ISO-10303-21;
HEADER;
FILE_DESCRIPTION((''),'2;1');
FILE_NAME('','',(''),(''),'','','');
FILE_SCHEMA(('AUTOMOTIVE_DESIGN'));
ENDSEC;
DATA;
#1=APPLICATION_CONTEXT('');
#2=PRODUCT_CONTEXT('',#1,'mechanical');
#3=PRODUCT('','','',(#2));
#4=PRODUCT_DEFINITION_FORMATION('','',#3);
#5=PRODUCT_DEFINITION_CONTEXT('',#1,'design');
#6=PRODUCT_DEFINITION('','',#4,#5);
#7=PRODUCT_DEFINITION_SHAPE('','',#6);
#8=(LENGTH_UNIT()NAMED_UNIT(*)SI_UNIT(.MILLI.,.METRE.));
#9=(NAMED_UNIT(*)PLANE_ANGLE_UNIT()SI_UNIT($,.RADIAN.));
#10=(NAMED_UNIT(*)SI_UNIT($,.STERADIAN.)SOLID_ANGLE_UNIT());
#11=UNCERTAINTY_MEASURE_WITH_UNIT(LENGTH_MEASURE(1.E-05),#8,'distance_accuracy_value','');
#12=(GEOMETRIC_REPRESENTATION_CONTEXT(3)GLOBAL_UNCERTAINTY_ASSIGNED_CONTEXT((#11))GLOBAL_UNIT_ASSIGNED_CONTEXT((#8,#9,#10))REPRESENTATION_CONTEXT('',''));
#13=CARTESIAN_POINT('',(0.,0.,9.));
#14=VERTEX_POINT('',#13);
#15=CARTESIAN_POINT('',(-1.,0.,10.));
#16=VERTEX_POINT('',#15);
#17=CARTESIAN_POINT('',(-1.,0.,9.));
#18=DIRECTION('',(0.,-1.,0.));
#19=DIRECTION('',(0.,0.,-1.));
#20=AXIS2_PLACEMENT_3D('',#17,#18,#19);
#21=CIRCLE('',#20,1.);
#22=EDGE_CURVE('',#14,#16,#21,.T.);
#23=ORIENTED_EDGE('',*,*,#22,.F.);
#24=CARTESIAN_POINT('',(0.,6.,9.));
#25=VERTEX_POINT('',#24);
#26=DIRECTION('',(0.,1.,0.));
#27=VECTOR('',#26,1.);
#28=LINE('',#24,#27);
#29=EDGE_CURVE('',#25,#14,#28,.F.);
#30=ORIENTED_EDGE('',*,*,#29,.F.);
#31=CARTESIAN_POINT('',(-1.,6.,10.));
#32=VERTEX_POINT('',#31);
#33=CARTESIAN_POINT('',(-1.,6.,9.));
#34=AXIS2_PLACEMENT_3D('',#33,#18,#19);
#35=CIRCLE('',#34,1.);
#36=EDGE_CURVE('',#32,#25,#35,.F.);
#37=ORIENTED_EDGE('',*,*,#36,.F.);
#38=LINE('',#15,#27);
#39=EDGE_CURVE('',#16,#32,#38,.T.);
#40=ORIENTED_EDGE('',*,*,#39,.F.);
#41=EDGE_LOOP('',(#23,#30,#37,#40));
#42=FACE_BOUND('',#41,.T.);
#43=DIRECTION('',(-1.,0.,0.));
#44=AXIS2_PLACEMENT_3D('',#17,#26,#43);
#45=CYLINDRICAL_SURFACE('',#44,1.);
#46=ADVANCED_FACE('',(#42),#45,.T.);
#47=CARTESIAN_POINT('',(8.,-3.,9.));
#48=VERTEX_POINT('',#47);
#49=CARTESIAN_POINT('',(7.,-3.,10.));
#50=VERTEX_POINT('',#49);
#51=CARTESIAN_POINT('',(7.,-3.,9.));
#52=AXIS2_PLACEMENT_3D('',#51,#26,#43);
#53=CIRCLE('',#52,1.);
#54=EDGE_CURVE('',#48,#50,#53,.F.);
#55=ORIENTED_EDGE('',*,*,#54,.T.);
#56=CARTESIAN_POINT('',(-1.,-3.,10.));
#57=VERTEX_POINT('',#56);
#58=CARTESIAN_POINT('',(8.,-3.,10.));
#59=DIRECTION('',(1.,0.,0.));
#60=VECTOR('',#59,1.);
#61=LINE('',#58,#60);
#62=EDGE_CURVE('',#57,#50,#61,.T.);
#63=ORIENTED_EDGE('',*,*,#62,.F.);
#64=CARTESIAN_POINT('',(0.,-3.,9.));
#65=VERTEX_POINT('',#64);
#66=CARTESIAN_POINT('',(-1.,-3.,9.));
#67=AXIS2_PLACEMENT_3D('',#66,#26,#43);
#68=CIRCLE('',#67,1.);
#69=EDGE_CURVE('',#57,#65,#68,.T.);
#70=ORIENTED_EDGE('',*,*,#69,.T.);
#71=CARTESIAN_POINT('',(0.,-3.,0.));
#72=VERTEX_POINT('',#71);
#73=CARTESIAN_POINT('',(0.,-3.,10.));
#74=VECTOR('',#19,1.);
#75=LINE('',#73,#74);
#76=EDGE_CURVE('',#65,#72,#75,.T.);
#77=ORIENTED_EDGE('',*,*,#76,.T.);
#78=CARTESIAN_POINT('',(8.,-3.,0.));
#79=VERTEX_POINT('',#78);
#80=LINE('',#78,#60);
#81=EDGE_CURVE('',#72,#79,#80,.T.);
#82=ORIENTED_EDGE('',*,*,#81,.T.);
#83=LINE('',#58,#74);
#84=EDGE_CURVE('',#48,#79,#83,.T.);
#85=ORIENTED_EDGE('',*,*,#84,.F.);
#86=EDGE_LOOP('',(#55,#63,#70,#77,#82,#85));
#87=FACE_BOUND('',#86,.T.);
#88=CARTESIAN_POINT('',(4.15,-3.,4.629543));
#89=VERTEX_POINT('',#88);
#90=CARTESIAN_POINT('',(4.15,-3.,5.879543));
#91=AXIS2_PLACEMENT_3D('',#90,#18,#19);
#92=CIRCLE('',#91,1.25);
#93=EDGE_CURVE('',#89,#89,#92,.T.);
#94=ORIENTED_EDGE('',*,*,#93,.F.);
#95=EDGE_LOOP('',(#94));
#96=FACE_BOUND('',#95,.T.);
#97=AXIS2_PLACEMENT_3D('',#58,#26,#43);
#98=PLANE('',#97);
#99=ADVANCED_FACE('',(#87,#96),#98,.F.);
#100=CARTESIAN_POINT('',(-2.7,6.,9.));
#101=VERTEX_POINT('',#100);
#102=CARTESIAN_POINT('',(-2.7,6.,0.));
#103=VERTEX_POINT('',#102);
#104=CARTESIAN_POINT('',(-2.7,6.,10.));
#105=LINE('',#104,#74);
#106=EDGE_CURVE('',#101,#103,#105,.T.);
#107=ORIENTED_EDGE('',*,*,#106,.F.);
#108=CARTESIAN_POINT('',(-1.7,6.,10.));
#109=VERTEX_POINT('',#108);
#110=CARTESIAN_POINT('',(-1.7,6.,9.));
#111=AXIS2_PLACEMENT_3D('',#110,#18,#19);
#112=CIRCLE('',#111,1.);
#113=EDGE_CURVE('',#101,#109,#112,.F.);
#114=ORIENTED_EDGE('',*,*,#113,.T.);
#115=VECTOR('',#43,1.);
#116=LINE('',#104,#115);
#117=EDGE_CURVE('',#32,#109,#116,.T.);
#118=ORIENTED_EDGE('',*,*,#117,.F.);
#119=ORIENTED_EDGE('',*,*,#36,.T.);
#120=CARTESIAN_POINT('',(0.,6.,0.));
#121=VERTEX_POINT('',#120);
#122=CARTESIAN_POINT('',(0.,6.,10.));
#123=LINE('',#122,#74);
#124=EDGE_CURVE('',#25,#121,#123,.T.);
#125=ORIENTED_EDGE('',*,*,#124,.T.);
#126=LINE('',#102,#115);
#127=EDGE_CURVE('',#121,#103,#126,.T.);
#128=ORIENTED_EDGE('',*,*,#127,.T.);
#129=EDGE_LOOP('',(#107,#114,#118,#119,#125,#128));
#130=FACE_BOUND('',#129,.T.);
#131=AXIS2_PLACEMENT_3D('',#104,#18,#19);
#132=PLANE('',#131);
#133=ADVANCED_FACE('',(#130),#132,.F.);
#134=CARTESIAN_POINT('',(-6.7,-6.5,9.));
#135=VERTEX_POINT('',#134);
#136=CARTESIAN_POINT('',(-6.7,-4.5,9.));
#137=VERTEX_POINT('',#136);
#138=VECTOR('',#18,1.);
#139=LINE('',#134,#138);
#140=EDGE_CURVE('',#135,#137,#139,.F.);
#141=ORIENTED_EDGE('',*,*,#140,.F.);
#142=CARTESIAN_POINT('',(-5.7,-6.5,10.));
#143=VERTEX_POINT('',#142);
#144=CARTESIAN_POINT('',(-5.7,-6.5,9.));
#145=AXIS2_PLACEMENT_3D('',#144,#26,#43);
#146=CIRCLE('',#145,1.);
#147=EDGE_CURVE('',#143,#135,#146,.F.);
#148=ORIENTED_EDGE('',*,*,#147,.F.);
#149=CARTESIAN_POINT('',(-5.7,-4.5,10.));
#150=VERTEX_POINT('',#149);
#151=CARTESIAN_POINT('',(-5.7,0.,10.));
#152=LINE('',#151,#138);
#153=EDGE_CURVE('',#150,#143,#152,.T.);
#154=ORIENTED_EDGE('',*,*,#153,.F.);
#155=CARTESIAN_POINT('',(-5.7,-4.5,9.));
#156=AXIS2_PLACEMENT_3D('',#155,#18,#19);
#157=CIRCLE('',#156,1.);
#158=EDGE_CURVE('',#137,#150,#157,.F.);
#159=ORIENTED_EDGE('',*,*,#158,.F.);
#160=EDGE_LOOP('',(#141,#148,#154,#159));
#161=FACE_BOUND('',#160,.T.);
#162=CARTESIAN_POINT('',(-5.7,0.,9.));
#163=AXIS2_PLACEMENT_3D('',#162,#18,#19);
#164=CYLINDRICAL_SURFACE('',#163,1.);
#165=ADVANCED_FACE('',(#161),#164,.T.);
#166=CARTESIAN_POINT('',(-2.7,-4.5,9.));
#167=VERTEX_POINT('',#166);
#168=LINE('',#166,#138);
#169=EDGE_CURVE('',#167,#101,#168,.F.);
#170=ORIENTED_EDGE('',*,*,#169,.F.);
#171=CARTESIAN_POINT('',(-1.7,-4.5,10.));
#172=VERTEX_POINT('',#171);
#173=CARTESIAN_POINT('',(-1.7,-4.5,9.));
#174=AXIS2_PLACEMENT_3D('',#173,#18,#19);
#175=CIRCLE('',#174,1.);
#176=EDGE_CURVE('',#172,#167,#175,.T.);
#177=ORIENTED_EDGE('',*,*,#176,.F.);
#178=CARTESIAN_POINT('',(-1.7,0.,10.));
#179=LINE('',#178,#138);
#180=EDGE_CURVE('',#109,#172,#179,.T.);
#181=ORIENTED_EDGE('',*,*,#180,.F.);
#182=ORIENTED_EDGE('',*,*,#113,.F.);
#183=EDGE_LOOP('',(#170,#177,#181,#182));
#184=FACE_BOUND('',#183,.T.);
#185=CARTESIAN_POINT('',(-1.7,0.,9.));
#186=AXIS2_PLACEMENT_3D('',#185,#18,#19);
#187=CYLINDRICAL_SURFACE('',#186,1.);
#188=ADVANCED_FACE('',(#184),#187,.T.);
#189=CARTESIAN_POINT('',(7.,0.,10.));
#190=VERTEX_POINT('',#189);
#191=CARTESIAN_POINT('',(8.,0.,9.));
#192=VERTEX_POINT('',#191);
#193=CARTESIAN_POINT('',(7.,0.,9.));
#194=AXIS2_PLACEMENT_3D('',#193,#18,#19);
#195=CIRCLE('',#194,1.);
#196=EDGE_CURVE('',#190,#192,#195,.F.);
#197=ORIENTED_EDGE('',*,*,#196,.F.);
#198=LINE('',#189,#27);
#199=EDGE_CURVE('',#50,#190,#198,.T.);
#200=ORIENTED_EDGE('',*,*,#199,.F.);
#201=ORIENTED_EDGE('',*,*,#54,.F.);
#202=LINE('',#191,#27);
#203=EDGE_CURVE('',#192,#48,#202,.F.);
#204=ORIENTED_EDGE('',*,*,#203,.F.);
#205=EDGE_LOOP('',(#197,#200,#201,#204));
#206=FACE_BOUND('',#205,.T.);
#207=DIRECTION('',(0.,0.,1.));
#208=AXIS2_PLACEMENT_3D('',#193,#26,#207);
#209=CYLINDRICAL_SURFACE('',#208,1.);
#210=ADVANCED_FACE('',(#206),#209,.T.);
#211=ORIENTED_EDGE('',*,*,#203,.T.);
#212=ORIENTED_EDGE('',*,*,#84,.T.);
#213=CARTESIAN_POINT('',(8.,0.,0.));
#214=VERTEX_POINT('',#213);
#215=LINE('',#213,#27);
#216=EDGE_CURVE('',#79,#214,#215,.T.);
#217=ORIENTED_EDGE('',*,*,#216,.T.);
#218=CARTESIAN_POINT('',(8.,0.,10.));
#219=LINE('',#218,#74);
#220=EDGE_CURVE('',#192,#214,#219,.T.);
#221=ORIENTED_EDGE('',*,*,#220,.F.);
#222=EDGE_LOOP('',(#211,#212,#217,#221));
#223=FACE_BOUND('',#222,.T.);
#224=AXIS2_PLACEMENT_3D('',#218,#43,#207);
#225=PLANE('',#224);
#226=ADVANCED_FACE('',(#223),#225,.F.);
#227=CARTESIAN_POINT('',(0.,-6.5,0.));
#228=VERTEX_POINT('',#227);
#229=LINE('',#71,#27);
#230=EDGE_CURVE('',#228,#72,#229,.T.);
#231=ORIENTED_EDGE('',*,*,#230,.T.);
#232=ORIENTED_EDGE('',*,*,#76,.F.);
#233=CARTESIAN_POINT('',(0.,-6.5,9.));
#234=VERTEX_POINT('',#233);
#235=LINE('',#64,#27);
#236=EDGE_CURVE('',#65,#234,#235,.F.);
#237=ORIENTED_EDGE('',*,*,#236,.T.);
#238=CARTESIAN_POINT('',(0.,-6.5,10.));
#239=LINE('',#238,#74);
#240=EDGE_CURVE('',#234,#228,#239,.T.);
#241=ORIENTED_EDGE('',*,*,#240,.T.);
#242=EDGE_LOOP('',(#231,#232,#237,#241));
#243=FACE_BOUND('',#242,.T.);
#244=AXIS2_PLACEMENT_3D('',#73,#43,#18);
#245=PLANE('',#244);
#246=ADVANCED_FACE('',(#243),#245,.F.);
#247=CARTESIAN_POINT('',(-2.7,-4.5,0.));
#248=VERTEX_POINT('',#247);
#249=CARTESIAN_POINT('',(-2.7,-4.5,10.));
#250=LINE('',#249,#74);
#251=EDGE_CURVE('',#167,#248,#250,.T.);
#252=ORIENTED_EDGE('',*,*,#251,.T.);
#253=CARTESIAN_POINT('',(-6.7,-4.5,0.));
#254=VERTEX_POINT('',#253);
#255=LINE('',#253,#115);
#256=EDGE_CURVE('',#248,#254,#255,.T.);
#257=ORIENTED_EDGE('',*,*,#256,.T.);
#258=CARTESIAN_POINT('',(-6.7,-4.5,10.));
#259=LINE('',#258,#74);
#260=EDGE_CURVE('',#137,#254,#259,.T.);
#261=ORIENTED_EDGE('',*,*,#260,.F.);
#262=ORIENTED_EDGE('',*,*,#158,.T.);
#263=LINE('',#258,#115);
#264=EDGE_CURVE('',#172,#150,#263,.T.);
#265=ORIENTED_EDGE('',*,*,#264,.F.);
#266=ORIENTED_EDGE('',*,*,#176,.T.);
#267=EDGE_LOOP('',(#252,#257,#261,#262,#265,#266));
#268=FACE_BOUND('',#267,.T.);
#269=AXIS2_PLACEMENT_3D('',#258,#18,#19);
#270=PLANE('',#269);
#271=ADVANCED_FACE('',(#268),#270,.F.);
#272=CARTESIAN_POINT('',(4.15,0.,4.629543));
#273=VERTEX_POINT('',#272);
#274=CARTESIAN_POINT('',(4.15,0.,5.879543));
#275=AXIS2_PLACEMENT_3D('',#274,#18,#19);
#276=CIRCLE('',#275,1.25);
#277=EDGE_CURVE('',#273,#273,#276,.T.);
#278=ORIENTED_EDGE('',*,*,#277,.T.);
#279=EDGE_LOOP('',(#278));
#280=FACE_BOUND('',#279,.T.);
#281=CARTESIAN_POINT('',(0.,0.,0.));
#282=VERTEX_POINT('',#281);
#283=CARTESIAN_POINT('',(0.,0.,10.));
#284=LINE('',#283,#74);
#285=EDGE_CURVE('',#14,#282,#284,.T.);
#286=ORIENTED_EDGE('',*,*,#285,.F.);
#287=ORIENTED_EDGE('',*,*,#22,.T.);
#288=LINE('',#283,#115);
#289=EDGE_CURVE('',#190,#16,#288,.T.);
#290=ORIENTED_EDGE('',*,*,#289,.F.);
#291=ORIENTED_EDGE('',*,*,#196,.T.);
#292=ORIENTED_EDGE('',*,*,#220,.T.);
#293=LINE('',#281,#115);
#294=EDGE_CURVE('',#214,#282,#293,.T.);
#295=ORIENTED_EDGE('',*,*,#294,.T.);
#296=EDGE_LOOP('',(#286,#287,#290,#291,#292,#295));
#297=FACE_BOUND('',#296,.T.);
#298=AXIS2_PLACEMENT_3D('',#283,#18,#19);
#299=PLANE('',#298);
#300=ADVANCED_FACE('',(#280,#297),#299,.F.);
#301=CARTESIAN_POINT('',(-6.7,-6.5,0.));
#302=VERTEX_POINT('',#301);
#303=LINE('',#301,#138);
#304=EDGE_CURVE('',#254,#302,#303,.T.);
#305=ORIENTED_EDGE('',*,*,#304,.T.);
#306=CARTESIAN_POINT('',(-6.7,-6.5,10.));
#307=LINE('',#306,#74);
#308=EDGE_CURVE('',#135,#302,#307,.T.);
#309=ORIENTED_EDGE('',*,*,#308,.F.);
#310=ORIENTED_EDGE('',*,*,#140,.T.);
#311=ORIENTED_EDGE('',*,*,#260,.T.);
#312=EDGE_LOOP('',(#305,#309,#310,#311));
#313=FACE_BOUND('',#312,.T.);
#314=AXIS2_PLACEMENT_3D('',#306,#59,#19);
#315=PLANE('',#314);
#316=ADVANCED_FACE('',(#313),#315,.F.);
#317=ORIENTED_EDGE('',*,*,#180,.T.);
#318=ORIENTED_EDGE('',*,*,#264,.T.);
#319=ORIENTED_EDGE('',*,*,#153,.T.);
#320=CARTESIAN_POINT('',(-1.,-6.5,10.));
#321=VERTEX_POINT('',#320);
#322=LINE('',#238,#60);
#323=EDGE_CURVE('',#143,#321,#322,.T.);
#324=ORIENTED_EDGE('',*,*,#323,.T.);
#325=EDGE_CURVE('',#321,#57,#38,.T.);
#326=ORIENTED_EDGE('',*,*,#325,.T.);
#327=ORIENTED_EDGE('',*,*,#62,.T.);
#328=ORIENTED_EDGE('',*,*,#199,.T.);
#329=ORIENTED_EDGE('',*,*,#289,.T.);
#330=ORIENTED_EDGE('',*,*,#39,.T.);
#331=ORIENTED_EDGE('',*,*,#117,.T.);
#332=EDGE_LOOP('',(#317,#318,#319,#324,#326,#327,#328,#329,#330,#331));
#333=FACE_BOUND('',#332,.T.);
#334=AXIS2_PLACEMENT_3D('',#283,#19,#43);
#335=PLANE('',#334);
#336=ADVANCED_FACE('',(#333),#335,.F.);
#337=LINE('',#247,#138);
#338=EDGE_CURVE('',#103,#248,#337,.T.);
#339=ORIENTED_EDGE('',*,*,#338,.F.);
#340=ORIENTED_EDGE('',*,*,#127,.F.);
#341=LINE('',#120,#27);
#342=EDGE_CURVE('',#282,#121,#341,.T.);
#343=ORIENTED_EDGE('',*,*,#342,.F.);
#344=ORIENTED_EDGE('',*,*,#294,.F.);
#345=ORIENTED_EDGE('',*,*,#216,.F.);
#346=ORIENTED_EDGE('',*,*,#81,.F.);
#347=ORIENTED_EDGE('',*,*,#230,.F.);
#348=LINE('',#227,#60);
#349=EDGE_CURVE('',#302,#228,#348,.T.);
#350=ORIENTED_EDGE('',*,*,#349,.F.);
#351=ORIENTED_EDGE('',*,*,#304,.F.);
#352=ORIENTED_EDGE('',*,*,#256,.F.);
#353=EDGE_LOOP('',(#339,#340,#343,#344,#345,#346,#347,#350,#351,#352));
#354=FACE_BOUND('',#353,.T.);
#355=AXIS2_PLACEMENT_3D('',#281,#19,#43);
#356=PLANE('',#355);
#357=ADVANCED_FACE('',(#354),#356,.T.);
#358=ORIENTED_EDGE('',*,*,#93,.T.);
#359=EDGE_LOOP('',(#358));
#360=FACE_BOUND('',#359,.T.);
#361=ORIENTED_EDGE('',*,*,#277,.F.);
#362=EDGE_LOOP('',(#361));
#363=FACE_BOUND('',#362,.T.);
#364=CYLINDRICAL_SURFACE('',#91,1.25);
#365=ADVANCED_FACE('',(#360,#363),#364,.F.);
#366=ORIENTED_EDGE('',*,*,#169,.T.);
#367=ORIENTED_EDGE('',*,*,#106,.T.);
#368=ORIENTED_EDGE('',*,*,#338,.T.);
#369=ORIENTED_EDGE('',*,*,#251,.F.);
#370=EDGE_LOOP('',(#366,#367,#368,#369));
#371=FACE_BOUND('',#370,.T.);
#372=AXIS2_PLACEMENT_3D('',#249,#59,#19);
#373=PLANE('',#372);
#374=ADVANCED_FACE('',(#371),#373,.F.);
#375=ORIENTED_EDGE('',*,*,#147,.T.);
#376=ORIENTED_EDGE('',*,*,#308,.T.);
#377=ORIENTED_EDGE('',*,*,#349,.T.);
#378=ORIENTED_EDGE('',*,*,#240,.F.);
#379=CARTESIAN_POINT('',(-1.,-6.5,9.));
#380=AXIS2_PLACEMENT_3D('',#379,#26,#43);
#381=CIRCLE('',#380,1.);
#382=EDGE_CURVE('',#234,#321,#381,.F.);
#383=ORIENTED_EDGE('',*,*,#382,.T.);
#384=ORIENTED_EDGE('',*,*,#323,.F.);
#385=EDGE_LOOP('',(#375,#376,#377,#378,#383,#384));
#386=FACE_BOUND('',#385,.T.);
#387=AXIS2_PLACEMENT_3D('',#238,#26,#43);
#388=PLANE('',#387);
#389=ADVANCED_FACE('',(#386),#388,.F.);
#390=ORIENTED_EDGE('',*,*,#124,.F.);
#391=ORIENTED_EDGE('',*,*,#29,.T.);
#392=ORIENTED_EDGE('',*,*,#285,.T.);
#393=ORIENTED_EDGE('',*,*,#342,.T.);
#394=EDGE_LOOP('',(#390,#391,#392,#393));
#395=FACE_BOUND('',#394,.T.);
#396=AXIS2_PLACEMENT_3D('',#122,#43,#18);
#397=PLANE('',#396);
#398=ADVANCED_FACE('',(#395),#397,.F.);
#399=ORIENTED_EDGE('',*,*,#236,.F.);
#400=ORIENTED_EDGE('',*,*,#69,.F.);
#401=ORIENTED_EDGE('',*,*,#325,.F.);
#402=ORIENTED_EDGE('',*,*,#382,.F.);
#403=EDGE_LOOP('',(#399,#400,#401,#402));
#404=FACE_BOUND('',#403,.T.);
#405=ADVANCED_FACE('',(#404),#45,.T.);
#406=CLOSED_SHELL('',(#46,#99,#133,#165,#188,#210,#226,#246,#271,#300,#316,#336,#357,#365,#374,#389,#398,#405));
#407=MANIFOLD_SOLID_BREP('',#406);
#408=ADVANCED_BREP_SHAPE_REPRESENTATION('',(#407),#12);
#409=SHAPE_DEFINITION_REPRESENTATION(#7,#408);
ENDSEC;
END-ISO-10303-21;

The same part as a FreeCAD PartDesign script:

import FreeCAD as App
import Part
import Sketcher

V = App.Vector


def edges_at(feature, points):
    """Names of the edges that pass closest to the given points."""
    edges = feature.Shape.Edges
    near = lambda p: min(range(len(edges)), key=lambda i: edges[i].distToShape(Part.Vertex(*p))[0])
    return sorted({f"Edge{near(p) + 1}" for p in points})


def add_polygon(sketch, points):
    """Adds a closed chain of lines whose ends are joined by coincident constraints."""
    first, n = sketch.GeometryCount, len(points)
    for a, b in zip(points, points[1:] + points[:1]):
        sketch.addGeometry(Part.LineSegment(App.Vector(*a, 0), App.Vector(*b, 0)), False)
    for i in range(n):
        sketch.addConstraint(Sketcher.Constraint("Coincident", first + i, 2, first + (i + 1) % n, 1))

doc = App.newDocument("Part")
body = doc.addObject("PartDesign::Body", "Body")

# Sketch on XY plane
sketch1 = doc.addObject("Sketcher::SketchObject", "Sketch")
body.addObject(sketch1)
sketch1.AttachmentSupport = (doc.XY_Plane, [""])
sketch1.MapMode = "FlatFace"
add_polygon(sketch1, [(0, 6), (-2.7, 6), (-2.7, -4.5), (-6.7, -4.5), (-6.7, -6.5), (0, -6.5), (0, -3), (8, -3), (8, 0), (0, 0)])  # lines 0-9
sketch1.addConstraint([
    Sketcher.Constraint("Horizontal", 0),
    Sketcher.Constraint("Vertical", 1),
    Sketcher.Constraint("Horizontal", 2),
    Sketcher.Constraint("Vertical", 3),
    Sketcher.Constraint("Horizontal", 4),
    Sketcher.Constraint("Vertical", 5),
    Sketcher.Constraint("Horizontal", 6),
    Sketcher.Constraint("Vertical", 7),
    Sketcher.Constraint("Horizontal", 8),
    Sketcher.Constraint("Vertical", 9),
    Sketcher.Constraint("Coincident", 8, 2, -1, 1),
    Sketcher.Constraint("PointOnObject", 4, 2, -2),
    Sketcher.Constraint("DistanceX", 2, 2, 2, 1, 4.0),
    Sketcher.Constraint("DistanceX", 6, 1, 6, 2, 8.0),
    Sketcher.Constraint("DistanceY", 3, 2, 3, 1, 2.0),
    Sketcher.Constraint("DistanceY", 7, 1, 7, 2, 3.0),
    Sketcher.Constraint("DistanceY", 9, 1, 9, 2, 6.0),
    Sketcher.Constraint("DistanceX", 0, 2, 0, 1, 2.7),
    Sketcher.Constraint("DistanceY", 1, 2, 1, 1, 10.5),
])
pad1 = doc.addObject("PartDesign::Pad", "Pad")
body.addObject(pad1)
pad1.Profile = sketch1
pad1.Length = 10

# Sketch on XZ plane
sketch2 = doc.addObject("Sketcher::SketchObject", "Sketch001")
body.addObject(sketch2)
sketch2.AttachmentSupport = (doc.XZ_Plane, [""])
sketch2.MapMode = "FlatFace"
sketch2.AttachmentOffset = App.Placement(V(0, 0, 3), App.Rotation())
sketch2.addGeometry(Part.Circle(V(4.2, 5.9, 0), V(0, 0, 1), 1.2), False)
sketch2.addConstraint([
    Sketcher.Constraint("Diameter", 0, 2.5),
    Sketcher.Constraint("DistanceX", -1, 1, 0, 3, 4.15),
    Sketcher.Constraint("DistanceY", -1, 1, 0, 3, 5.879543),
])
doc.recompute()
hole = doc.addObject("PartDesign::Hole", "Hole")
body.addObject(hole)
hole.Profile = sketch2
hole.ThreadType = "None"
hole.Diameter = 2.5
hole.DepthType = "Dimension"
hole.Depth = 5
hole.DrillPoint = "Angled"
hole.DrillPointAngle = 118
doc.recompute()

fillet = doc.addObject("PartDesign::Fillet", "Fillet")
body.addObject(fillet)
fillet.Base = (hole, edges_at(hole, [
    (-6.7, -5.5, 10),
    (0, -4.75, 10),
    (8, -1.5, 10),
    (0, 3, 10),
]))
fillet.Radius = 1
doc.recompute()

fillet2 = doc.addObject("PartDesign::Fillet", "Fillet001")
body.addObject(fillet2)
fillet2.Base = (fillet, edges_at(fillet, [(-2.7, 0.75, 10)]))
fillet2.Radius = 1

doc.recompute()
